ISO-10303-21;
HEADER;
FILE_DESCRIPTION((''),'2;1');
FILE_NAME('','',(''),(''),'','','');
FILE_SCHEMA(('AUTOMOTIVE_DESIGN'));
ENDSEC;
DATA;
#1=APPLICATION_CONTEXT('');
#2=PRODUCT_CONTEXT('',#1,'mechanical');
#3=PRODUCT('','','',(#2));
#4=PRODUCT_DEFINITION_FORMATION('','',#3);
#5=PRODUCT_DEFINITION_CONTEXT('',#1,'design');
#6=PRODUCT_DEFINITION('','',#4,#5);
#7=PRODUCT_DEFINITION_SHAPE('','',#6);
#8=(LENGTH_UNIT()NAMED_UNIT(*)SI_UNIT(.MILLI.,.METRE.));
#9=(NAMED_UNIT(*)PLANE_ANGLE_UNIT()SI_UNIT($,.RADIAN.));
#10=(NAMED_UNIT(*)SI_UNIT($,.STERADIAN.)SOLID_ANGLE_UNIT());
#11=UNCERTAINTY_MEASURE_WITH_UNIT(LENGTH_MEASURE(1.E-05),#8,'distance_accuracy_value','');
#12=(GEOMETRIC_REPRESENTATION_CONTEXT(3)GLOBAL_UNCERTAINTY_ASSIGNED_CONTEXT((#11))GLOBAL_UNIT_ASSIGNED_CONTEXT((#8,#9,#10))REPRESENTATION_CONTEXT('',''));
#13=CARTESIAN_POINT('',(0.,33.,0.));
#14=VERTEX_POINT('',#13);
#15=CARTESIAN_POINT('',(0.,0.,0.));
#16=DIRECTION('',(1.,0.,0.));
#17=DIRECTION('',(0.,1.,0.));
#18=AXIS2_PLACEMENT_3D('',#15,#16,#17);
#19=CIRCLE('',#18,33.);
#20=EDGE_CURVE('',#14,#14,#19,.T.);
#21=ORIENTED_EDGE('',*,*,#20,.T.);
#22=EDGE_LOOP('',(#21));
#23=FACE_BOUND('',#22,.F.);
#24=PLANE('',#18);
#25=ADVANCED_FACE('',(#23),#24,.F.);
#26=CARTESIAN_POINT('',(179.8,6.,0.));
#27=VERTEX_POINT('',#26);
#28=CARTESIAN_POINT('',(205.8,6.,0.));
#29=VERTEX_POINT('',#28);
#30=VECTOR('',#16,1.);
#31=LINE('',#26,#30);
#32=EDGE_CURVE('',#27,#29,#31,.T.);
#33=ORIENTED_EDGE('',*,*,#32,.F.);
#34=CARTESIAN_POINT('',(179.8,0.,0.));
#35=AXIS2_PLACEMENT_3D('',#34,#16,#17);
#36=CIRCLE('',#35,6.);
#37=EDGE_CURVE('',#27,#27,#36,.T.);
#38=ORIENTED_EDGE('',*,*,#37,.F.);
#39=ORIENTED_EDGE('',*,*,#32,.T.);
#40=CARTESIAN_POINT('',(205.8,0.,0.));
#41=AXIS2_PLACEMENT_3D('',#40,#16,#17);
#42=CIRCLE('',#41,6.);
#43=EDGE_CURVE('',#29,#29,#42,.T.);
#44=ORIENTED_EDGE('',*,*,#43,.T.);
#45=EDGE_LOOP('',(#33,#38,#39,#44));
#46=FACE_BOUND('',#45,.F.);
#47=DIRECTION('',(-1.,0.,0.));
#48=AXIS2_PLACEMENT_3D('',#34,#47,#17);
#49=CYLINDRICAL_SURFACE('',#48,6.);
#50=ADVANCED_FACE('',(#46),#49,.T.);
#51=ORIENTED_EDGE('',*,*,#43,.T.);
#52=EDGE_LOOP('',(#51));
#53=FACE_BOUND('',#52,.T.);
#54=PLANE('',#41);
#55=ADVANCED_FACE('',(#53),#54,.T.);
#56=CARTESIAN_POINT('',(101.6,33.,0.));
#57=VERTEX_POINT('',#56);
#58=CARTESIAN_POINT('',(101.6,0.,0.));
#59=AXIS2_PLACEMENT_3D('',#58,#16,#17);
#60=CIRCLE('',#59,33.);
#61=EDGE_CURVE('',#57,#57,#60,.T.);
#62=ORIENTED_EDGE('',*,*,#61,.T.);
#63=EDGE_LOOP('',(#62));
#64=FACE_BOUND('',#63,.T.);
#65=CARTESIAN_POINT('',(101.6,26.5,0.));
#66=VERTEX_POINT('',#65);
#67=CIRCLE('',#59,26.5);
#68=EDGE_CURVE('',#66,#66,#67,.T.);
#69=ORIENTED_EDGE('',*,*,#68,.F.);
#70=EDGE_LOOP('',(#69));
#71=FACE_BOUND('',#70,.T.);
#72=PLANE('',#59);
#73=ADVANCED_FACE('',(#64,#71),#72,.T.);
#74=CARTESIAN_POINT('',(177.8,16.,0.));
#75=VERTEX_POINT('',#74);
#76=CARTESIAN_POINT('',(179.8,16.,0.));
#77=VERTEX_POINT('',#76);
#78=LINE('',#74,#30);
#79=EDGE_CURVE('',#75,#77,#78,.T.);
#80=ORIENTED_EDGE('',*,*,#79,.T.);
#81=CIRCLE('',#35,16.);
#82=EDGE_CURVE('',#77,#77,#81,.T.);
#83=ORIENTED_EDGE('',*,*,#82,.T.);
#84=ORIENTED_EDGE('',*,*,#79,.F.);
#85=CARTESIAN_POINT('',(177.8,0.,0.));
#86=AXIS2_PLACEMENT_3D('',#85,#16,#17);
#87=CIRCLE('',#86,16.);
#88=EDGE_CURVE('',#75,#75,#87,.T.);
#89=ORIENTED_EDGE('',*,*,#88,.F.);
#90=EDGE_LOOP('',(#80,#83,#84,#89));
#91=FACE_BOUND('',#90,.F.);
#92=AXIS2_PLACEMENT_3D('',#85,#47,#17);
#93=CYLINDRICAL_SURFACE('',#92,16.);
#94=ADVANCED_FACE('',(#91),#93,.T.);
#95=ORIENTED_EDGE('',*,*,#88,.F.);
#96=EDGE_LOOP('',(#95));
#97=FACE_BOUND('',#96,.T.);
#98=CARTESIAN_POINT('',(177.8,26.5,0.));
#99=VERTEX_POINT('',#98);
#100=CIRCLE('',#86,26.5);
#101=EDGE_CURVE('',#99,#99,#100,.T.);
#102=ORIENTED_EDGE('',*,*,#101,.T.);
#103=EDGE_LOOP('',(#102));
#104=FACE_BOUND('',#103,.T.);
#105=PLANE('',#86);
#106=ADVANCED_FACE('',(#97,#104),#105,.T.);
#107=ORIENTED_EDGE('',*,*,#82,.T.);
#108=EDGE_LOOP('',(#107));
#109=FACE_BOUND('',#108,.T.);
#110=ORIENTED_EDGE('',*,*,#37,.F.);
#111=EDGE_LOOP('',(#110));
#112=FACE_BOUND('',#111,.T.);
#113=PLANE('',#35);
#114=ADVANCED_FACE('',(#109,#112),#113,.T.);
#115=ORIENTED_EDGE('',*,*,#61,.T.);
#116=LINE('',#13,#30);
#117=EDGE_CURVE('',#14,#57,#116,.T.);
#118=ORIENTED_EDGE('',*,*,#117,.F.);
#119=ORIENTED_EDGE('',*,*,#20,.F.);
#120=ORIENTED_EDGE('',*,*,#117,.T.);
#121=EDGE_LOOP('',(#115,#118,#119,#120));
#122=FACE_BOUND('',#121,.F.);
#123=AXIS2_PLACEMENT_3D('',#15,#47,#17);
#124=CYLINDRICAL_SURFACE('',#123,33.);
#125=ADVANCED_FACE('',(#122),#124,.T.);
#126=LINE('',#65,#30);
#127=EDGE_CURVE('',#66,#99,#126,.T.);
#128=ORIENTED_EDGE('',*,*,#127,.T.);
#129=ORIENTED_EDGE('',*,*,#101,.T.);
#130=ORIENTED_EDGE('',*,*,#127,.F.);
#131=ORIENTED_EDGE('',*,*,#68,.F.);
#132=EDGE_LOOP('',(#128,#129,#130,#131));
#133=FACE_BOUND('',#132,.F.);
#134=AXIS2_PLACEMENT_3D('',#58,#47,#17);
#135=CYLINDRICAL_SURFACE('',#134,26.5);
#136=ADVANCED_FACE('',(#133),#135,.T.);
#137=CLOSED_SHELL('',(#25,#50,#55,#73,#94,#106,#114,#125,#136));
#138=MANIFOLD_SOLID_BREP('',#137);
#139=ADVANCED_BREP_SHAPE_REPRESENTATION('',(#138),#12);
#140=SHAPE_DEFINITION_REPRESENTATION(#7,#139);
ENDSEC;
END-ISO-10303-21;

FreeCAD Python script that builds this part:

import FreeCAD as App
import Part
import Sketcher
from FreeCAD import Vector
Q = App.Units.Quantity

doc = App.newDocument("Part")
body = doc.addObject("PartDesign::Body", "Body")

sketch1 = doc.addObject("Sketcher::SketchObject", "Sketch")
body.addObject(sketch1)
sketch1.AttachmentSupport = (doc.YZ_Plane, [""])
sketch1.MapMode = "FlatFace"
sketch1.addGeometry(Part.Circle(Vector(0, 0, 0), Vector(0, 0, 1), 33), False)
sketch1.addConstraint([
    Sketcher.Constraint("Coincident", 0, 3, -1, 1),
    Sketcher.Constraint("Diameter", 0, Q("66 mm")),
])
pad1 = doc.addObject("PartDesign::Pad", "Pad")
body.addObject(pad1)
pad1.Profile = sketch1
pad1.Length = 101.6

sketch2 = doc.addObject("Sketcher::SketchObject", "Sketch001")
body.addObject(sketch2)
sketch2.AttachmentSupport = (doc.YZ_Plane, [""])
sketch2.MapMode = "FlatFace"
sketch2.AttachmentOffset = App.Placement(Vector(0, 0, 101.6), App.Rotation())
sketch2.addGeometry(Part.Circle(Vector(0, 0, 0), Vector(0, 0, 1), 26.5), False)
sketch2.addConstraint([
    Sketcher.Constraint("Coincident", 0, 3, -1, 1),
    Sketcher.Constraint("Diameter", 0, Q("53 mm")),
])
pad2 = doc.addObject("PartDesign::Pad", "Pad001")
body.addObject(pad2)
pad2.Profile = sketch2
pad2.Length = 76.2

sketch3 = doc.addObject("Sketcher::SketchObject", "Sketch002")
body.addObject(sketch3)
sketch3.AttachmentSupport = (doc.YZ_Plane, [""])
sketch3.MapMode = "FlatFace"
sketch3.AttachmentOffset = App.Placement(Vector(0, 0, 177.8), App.Rotation())
sketch3.addGeometry(Part.Circle(Vector(0, 0, 0), Vector(0, 0, 1), 16), False)
sketch3.addConstraint([
    Sketcher.Constraint("Coincident", 0, 3, -1, 1),
    Sketcher.Constraint("Diameter", 0, Q("32 mm")),
])
pad3 = doc.addObject("PartDesign::Pad", "Pad002")
body.addObject(pad3)
pad3.Profile = sketch3
pad3.Length = 2

sketch4 = doc.addObject("Sketcher::SketchObject", "Sketch003")
body.addObject(sketch4)
sketch4.AttachmentSupport = (doc.YZ_Plane, [""])
sketch4.MapMode = "FlatFace"
sketch4.AttachmentOffset = App.Placement(Vector(0, 0, 179.8), App.Rotation())
sketch4.addGeometry(Part.Circle(Vector(0, 0, 0), Vector(0, 0, 1), 6), False)
sketch4.addConstraint([
    Sketcher.Constraint("Coincident", 0, 3, -1, 1),
    Sketcher.Constraint("Diameter", 0, Q("12 mm")),
])
pad4 = doc.addObject("PartDesign::Pad", "Pad003")
body.addObject(pad4)
pad4.Profile = sketch4
pad4.Length = 26

doc.recompute()
